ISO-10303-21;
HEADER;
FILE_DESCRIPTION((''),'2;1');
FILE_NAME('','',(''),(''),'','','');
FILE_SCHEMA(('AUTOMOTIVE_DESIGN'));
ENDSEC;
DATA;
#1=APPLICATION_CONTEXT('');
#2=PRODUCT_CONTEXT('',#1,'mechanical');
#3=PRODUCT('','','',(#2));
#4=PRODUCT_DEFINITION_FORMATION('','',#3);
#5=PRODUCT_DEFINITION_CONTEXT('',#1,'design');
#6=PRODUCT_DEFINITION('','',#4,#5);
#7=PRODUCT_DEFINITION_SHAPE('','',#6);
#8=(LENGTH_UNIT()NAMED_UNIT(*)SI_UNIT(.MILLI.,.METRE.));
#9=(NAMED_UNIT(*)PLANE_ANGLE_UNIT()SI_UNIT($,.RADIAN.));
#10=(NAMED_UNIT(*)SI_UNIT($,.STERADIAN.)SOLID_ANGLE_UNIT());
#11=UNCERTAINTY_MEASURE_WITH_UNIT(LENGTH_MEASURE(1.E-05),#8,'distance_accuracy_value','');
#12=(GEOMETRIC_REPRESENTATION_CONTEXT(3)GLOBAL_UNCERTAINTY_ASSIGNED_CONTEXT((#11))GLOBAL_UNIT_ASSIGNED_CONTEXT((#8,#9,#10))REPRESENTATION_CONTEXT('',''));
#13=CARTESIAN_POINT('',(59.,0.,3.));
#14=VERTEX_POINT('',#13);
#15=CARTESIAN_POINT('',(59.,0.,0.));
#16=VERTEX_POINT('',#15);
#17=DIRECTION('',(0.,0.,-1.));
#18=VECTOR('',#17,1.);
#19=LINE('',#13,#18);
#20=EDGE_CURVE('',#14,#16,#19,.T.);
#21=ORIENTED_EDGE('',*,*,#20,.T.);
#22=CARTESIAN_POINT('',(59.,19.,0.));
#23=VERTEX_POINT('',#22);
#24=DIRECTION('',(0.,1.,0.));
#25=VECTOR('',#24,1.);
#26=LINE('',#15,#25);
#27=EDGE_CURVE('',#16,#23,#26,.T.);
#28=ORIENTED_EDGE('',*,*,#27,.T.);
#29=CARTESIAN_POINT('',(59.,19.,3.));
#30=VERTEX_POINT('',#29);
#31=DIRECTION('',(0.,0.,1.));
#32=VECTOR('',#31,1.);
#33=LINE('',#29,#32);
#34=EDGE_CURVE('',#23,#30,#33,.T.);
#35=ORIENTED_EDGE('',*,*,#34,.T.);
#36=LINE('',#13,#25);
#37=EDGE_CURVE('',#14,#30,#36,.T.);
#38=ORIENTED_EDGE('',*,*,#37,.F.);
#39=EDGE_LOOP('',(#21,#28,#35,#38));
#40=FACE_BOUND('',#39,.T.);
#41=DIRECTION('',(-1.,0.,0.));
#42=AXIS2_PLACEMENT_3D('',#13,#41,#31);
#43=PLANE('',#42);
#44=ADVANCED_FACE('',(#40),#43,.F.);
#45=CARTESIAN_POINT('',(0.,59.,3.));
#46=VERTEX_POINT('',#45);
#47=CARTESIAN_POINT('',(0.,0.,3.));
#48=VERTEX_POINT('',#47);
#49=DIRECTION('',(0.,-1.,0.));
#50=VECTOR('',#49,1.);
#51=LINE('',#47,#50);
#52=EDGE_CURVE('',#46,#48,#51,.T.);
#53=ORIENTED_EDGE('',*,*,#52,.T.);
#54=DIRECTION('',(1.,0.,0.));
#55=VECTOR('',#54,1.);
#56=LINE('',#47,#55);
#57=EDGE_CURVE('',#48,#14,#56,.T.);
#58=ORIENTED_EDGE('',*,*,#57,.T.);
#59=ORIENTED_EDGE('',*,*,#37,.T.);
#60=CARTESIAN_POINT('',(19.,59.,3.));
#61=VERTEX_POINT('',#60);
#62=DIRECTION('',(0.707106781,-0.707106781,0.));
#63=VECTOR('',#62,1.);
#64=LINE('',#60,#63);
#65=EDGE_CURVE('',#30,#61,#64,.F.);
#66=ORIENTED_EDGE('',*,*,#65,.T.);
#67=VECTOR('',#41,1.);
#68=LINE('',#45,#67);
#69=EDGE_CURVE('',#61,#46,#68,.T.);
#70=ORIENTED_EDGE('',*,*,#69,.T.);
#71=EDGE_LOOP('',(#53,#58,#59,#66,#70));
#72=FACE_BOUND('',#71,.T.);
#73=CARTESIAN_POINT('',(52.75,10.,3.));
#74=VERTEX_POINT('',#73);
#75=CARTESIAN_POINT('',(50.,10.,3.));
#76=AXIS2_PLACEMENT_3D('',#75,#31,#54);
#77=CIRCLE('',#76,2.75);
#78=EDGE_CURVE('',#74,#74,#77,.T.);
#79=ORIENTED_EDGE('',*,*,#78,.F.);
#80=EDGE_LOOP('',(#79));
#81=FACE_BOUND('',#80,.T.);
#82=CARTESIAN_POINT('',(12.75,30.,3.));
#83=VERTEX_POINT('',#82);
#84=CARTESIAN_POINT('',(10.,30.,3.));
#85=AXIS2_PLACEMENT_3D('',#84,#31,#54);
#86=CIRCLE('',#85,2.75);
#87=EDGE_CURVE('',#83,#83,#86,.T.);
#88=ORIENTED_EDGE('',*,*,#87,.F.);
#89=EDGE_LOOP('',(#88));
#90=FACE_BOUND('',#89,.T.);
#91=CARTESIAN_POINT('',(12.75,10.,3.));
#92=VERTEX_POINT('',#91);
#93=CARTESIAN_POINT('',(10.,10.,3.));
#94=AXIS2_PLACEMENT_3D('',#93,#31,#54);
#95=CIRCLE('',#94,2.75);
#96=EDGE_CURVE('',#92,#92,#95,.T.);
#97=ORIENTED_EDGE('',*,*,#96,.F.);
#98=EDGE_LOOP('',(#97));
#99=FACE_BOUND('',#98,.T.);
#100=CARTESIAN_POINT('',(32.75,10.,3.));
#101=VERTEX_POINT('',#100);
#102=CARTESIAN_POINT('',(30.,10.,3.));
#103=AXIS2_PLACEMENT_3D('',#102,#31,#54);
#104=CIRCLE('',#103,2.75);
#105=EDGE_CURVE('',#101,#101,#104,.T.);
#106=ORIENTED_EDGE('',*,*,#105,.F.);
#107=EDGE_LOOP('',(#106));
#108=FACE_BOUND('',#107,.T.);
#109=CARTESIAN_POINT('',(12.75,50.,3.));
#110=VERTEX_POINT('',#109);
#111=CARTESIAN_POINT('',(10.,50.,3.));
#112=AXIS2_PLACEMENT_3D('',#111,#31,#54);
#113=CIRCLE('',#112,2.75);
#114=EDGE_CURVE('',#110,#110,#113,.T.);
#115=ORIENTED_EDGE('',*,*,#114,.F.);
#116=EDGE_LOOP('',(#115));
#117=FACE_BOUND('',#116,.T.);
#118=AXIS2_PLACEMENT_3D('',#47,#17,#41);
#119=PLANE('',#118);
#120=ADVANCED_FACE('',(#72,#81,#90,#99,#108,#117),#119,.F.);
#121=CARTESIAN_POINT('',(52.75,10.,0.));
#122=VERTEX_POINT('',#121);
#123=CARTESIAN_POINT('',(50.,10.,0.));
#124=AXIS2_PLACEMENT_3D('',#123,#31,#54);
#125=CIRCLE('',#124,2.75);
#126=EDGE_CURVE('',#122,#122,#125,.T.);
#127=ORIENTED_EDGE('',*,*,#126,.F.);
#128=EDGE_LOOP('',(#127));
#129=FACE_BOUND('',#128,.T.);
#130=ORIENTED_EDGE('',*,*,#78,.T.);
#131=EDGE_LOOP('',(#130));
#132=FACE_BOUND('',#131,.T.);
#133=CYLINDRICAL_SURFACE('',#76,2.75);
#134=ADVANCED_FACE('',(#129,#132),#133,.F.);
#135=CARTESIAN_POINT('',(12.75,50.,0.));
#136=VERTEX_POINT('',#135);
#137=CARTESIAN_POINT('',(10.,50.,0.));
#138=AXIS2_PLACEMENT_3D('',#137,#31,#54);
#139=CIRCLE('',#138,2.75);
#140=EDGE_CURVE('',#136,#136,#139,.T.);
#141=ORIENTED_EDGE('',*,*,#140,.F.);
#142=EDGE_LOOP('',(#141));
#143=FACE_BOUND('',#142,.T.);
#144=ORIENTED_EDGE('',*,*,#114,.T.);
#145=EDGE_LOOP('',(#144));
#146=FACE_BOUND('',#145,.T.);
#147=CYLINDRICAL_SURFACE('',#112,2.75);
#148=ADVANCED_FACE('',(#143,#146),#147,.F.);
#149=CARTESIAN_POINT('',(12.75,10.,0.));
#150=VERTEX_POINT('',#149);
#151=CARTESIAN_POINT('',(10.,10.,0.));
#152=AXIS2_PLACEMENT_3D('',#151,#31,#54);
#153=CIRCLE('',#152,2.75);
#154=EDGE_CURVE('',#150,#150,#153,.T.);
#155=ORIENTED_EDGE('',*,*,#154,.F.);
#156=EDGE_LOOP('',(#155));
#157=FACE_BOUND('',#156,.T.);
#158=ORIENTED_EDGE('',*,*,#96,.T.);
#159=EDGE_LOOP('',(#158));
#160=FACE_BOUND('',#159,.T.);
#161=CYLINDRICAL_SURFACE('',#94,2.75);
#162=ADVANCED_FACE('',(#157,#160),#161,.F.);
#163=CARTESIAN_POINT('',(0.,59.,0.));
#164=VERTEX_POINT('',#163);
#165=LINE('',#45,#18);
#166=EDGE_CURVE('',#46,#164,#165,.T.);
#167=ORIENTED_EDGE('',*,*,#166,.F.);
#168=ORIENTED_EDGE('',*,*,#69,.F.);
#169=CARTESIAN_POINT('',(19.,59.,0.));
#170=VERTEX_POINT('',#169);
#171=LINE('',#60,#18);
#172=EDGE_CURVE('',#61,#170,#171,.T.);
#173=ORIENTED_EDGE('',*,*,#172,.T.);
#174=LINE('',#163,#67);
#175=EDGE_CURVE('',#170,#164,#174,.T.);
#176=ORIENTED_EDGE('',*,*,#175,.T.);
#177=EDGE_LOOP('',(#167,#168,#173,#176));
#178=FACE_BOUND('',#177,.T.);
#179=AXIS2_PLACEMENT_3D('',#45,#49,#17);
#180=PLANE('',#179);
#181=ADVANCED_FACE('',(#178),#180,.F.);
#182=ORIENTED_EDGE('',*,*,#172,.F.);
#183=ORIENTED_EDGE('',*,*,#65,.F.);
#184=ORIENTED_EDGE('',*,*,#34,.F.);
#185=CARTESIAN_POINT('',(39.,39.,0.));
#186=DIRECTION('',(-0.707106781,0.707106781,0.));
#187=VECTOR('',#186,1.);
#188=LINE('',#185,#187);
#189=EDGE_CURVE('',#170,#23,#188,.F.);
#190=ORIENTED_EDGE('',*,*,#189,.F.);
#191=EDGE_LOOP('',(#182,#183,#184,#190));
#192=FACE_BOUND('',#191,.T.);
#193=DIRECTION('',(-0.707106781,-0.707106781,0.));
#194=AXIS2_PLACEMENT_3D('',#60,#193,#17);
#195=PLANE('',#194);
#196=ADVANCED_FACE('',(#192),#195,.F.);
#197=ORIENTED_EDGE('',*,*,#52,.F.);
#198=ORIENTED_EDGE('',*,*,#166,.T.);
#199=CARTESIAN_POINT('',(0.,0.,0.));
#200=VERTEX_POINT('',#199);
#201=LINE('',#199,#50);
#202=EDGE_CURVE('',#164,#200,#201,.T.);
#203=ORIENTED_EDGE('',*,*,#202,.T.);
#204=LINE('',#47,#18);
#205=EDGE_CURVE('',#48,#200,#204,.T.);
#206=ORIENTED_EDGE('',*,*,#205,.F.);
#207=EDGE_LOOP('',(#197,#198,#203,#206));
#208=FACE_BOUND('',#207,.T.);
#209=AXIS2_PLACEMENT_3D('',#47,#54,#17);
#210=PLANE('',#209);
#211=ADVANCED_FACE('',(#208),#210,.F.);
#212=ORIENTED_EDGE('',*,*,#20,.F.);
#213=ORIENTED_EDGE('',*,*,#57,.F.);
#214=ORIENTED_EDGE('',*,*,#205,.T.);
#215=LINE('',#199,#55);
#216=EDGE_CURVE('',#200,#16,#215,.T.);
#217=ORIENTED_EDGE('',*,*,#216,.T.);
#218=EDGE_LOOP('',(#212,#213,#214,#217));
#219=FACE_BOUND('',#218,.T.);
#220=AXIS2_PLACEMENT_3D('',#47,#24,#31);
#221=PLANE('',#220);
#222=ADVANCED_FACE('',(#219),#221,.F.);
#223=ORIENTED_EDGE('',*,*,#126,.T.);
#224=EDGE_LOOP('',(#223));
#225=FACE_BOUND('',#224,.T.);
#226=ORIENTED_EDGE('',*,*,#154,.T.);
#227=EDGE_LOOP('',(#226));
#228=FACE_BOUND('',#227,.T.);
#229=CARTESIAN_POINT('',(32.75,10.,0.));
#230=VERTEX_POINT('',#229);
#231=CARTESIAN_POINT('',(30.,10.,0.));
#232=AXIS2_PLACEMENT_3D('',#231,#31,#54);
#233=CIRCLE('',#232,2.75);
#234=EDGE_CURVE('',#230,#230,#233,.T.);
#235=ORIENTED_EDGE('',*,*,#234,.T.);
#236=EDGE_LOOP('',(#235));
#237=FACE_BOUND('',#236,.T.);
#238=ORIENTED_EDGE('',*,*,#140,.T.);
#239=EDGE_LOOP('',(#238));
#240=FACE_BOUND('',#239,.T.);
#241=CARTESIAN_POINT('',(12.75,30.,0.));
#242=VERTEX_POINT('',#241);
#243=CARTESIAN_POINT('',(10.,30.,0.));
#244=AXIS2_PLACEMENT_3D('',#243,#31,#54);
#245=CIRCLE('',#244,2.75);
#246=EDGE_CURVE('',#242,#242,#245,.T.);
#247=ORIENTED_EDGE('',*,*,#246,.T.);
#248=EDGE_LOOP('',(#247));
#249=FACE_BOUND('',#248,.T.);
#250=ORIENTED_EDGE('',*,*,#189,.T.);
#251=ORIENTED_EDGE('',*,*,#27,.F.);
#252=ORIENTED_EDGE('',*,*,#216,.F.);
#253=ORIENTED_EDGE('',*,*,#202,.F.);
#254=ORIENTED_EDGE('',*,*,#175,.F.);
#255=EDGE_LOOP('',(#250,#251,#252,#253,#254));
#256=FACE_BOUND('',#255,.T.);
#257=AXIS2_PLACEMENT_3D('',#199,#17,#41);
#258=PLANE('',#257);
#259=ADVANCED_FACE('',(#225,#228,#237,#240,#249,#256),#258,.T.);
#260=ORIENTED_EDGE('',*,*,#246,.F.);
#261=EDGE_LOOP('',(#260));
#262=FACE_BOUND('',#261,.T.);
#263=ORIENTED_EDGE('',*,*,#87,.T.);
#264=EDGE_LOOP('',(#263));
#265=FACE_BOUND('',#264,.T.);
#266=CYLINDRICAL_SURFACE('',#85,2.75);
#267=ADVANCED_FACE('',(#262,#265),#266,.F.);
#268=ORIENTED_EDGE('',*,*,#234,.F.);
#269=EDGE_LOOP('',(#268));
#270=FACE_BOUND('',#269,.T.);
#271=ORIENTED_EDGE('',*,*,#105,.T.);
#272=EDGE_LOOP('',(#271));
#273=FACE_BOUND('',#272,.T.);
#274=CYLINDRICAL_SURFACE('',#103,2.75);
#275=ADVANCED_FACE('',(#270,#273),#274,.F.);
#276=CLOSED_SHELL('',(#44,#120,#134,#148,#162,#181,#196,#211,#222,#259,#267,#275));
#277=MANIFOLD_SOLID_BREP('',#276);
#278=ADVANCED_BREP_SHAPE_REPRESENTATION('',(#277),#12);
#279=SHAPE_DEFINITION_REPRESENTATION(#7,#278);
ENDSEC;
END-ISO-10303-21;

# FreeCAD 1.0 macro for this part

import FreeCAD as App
import Part
import Sketcher

V = App.Vector


def edges_at(feature, points):
    """Names of the edges that pass closest to the given points."""
    edges = feature.Shape.Edges
    near = lambda p: min(range(len(edges)), key=lambda i: edges[i].distToShape(Part.Vertex(*p))[0])
    return sorted({f"Edge{near(p) + 1}" for p in points})


def add_polygon(sketch, points):
    """Adds a closed chain of lines whose ends are joined by coincident constraints."""
    first, n = sketch.GeometryCount, len(points)
    for a, b in zip(points, points[1:] + points[:1]):
        sketch.addGeometry(Part.LineSegment(App.Vector(*a, 0), App.Vector(*b, 0)), False)
    for i in range(n):
        sketch.addConstraint(Sketcher.Constraint("Coincident", first + i, 2, first + (i + 1) % n, 1))

doc = App.newDocument("Part")
params = doc.addObject("Spreadsheet::Sheet", "Params")
for row, (alias, value) in enumerate([
    ("sketch1_width", "59 mm"),
    ("pad1_length", "3 mm"),
    ("sketch2_diameter", "5.5 mm"),
    ("hole_diameter", "5.5 mm"),
    ("chamfer_size", "40 mm"),
], start=1):
    params.set(f"A{row}", alias)
    params.set(f"B{row}", "=" + value)
    params.setAlias(f"B{row}", alias)

body = doc.addObject("PartDesign::Body", "Body")

# Sketch on XY plane
sketch1 = body.newObject("Sketcher::SketchObject", "Sketch")
sketch1.AttachmentSupport = (doc.getObject("XY_Plane"), [""])
sketch1.MapMode = "FlatFace"
add_polygon(sketch1, [(0, 59), (0, 0), (59, 0), (59, 59)])  # lines 0-3
sketch1.addConstraint([
    Sketcher.Constraint("Vertical", 0),
    Sketcher.Constraint("Horizontal", 1),
    Sketcher.Constraint("Vertical", 2),
    Sketcher.Constraint("Horizontal", 3),
    Sketcher.Constraint("Coincident", 0, 2, -1, 1),
    Sketcher.Constraint("Equal", 3, 0),
    Sketcher.Constraint("DistanceX", 1, 1, 1, 2, 59.0),
])
sketch1.setExpression("Constraints[10]", "Params.sketch1_width")
pad1 = body.newObject("PartDesign::Pad", "Pad")
pad1.Profile = sketch1
pad1.setExpression("Length", "Params.pad1_length")

# Sketch on XY plane
sketch2 = body.newObject("Sketcher::SketchObject", "Sketch001")
sketch2.AttachmentSupport = (doc.getObject("XY_Plane"), [""])
sketch2.MapMode = "FlatFace"
sketch2.AttachmentOffset = App.Placement(V(0, 0, 3), App.Rotation())
sketch2.addGeometry([
    Part.Circle(V(10, 10, 0), V(0, 0, 1), 2.8),  # 0
    Part.Circle(V(10, 30, 0), V(0, 0, 1), 2.8),  # 1
    Part.Circle(V(30, 10, 0), V(0, 0, 1), 2.8),  # 2
    Part.Circle(V(50, 10, 0), V(0, 0, 1), 2.8),  # 3
    Part.Circle(V(10, 50, 0), V(0, 0, 1), 2.8),  # 4
], False)
sketch2.addConstraint([
    Sketcher.Constraint("Equal", 0, 1),
    Sketcher.Constraint("Equal", 1, 2),
    Sketcher.Constraint("Equal", 2, 3),
    Sketcher.Constraint("Equal", 3, 4),
    Sketcher.Constraint("Horizontal", 0, 3, 2, 3),
    Sketcher.Constraint("Horizontal", 2, 3, 3, 3),
    Sketcher.Constraint("Vertical", 0, 3, 1, 3),
    Sketcher.Constraint("Vertical", 1, 3, 4, 3),
    Sketcher.Constraint("Diameter", 0, 5.5),
    Sketcher.Constraint("DistanceX", -1, 1, 0, 3, 10.0),
    Sketcher.Constraint("DistanceY", -1, 1, 0, 3, 10.0),
    Sketcher.Constraint("DistanceY", -1, 1, 1, 3, 30.0),
    Sketcher.Constraint("DistanceX", -1, 1, 2, 3, 30.0),
    Sketcher.Constraint("DistanceX", -1, 1, 3, 3, 50.0),
    Sketcher.Constraint("DistanceY", -1, 1, 4, 3, 50.0),
])
sketch2.setExpression("Constraints[8]", "Params.sketch2_diameter")
doc.recompute()
hole = body.newObject("PartDesign::Hole", "Hole")
hole.Profile = sketch2
hole.ThreadType = "None"
hole.setExpression("Diameter", "Params.hole_diameter")
hole.DepthType = "ThroughAll"
doc.recompute()

chamfer = body.newObject("PartDesign::Chamfer", "Chamfer")
chamfer.Base = (hole, edges_at(hole, [(59, 59, 1.5)]))
chamfer.setExpression("Size", "Params.chamfer_size")

doc.recompute()
